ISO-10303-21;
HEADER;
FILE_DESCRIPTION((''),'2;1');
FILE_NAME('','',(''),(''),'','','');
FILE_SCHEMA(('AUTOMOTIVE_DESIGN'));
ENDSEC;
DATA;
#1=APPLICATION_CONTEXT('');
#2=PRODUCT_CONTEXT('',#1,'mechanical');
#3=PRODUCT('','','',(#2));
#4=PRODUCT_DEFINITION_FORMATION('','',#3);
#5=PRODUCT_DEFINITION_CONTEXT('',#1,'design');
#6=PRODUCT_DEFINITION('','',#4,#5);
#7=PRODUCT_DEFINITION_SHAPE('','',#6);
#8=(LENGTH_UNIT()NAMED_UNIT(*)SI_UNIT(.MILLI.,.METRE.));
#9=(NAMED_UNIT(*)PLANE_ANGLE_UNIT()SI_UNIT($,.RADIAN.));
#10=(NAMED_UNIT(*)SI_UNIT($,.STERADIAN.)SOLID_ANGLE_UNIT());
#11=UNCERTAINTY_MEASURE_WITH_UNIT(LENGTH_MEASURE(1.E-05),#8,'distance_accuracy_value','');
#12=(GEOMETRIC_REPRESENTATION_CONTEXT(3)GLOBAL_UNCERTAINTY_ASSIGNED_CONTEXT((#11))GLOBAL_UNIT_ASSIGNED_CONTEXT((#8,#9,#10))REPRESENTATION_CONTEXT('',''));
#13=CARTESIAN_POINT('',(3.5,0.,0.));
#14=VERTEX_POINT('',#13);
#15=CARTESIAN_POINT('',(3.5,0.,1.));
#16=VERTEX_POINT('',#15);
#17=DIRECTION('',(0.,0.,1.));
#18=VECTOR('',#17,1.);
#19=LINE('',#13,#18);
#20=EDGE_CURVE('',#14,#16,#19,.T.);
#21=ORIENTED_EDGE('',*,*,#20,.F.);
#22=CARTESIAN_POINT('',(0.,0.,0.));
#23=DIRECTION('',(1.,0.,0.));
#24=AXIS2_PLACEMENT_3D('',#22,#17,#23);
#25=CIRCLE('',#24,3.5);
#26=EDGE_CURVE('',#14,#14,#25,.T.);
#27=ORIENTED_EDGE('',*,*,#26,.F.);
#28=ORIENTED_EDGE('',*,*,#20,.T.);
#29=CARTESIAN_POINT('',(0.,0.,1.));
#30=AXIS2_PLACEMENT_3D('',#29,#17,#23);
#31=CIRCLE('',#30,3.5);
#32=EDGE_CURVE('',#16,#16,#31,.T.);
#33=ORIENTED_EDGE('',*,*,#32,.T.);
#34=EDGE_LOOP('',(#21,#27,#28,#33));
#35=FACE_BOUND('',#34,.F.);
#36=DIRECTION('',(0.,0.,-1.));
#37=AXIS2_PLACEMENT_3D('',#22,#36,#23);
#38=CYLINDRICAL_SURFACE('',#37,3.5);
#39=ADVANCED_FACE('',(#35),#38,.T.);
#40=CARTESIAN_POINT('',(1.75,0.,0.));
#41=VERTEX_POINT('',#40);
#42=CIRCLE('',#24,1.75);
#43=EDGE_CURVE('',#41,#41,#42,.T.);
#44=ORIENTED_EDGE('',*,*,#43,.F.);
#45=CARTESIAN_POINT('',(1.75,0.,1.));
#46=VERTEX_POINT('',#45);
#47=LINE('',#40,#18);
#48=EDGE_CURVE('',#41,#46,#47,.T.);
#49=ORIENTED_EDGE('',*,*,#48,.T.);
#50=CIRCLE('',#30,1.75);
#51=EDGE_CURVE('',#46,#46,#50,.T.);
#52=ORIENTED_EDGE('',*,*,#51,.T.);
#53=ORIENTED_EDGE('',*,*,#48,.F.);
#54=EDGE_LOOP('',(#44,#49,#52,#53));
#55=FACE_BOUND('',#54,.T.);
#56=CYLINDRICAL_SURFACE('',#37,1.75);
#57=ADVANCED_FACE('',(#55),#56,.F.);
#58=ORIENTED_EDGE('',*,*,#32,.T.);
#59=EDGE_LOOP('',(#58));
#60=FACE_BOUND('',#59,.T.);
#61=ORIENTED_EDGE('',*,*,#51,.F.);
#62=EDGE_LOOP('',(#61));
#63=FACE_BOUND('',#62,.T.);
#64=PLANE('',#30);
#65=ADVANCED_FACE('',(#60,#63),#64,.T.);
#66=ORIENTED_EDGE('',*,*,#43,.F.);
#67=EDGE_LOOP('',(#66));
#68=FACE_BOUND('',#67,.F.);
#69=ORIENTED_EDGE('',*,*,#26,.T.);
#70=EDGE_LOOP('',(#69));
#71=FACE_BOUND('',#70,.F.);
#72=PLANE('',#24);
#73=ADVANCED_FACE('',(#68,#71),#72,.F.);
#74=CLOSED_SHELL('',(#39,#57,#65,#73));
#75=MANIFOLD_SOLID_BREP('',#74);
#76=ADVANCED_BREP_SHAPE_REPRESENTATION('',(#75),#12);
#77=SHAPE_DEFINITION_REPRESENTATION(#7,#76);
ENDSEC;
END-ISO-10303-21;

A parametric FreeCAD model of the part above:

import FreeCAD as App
import Part
import Sketcher
from FreeCAD import Vector
Q = App.Units.Quantity

doc = App.newDocument("Part")
body = doc.addObject("PartDesign::Body", "Body")

sketch1 = doc.addObject("Sketcher::SketchObject", "Sketch")
body.addObject(sketch1)
sketch1.AttachmentSupport = (doc.XY_Plane, [""])
sketch1.MapMode = "FlatFace"
sketch1.addGeometry([
    Part.Circle(Vector(0, 0, 0), Vector(0, 0, 1), 3.5),
    Part.Circle(Vector(0, 0, 0), Vector(0, 0, 1), 1.8),
], False)
sketch1.addConstraint([
    Sketcher.Constraint("Coincident", 0, 3, -1, 1),
    Sketcher.Constraint("Coincident", 1, 3, -1, 1),
    Sketcher.Constraint("Diameter", 0, Q("7 mm")),
    Sketcher.Constraint("Diameter", 1, Q("3.5 mm")),
])
pad1 = doc.addObject("PartDesign::Pad", "Pad")
body.addObject(pad1)
pad1.Profile = sketch1
pad1.Length = 1

doc.recompute()
